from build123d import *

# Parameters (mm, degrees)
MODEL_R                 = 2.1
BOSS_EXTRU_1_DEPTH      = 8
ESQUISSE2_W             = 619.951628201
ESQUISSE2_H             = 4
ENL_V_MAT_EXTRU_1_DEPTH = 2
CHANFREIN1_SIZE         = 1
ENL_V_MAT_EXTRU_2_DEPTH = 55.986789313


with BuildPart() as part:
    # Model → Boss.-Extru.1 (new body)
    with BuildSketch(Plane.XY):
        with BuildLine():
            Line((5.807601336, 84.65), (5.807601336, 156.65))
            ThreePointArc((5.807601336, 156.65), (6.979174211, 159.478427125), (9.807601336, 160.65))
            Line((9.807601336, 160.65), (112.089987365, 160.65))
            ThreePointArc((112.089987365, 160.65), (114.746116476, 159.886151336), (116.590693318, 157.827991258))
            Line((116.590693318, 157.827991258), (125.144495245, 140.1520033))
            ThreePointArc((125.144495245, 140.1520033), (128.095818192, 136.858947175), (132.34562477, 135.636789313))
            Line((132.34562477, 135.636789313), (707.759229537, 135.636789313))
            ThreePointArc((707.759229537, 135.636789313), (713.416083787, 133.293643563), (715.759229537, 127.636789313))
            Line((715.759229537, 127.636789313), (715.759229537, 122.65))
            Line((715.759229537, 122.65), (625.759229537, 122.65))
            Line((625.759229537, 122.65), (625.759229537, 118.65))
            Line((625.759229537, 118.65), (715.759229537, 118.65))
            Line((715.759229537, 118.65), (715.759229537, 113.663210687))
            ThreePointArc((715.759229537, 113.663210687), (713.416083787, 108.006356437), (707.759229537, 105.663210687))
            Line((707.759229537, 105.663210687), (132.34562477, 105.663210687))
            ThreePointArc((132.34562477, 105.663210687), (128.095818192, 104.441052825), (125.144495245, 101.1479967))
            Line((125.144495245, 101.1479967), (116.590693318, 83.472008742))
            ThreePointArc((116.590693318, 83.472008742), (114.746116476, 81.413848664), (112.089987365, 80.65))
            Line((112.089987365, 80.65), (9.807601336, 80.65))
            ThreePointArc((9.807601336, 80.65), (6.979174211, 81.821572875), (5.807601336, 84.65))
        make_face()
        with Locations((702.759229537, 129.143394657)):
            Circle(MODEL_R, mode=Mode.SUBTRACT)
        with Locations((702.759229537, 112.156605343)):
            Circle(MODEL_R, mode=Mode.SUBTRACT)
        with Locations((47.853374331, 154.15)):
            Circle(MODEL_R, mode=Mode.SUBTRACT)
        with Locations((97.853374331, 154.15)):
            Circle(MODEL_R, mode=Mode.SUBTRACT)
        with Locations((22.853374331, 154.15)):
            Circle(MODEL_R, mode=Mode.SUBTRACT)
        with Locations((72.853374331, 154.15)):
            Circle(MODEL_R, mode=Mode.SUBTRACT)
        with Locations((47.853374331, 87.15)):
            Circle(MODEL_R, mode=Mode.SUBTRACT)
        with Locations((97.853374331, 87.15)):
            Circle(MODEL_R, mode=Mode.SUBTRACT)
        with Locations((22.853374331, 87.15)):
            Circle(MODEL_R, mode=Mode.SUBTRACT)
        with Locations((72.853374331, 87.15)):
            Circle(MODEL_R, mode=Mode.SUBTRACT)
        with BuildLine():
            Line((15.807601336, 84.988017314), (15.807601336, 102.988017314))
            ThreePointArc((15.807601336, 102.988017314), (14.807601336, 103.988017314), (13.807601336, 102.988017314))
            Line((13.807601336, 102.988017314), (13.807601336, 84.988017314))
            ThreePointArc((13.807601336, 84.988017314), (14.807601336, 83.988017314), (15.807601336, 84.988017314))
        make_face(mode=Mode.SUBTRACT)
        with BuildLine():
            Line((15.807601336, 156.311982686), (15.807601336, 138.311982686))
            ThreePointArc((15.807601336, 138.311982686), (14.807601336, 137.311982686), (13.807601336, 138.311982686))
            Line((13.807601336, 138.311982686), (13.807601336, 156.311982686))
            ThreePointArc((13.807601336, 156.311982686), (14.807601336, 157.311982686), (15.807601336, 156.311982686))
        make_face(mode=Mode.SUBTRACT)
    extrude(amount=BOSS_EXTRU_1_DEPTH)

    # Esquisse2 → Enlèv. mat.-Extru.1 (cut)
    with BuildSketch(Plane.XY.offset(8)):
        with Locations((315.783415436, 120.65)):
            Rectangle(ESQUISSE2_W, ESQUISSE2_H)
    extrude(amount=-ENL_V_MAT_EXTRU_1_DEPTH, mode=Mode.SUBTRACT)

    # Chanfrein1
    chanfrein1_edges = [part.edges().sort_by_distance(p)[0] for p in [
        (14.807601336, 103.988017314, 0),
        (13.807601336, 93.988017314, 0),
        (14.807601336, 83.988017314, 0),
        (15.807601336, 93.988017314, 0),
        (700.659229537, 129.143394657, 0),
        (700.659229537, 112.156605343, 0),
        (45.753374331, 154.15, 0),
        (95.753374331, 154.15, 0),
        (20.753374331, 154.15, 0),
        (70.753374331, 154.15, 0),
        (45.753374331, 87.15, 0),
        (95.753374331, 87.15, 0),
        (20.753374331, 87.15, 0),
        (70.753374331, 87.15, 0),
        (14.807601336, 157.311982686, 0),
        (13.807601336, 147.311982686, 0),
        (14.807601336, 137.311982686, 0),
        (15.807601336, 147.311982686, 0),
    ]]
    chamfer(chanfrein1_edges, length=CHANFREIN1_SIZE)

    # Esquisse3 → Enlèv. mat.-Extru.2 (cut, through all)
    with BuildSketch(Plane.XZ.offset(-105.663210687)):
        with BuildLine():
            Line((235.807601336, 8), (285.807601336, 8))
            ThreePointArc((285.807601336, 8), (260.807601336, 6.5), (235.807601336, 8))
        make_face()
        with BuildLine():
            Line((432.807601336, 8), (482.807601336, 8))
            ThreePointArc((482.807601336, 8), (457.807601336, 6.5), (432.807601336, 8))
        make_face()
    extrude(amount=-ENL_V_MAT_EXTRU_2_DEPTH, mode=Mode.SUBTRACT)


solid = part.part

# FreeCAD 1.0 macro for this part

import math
import FreeCAD as App
import Part
import Sketcher

V = App.Vector


def edges_at(feature, points):
    """Names of the edges that pass closest to the given points."""
    edges = feature.Shape.Edges
    near = lambda p: min(range(len(edges)), key=lambda i: edges[i].distToShape(Part.Vertex(*p))[0])
    return sorted({f"Edge{near(p) + 1}" for p in points})


def add_polygon(sketch, points):
    """Adds a closed chain of lines whose ends are joined by coincident constraints."""
    first, n = sketch.GeometryCount, len(points)
    for a, b in zip(points, points[1:] + points[:1]):
        sketch.addGeometry(Part.LineSegment(App.Vector(*a, 0), App.Vector(*b, 0)), False)
    for i in range(n):
        sketch.addConstraint(Sketcher.Constraint("Coincident", first + i, 2, first + (i + 1) % n, 1))

doc = App.newDocument("Part")
body = doc.addObject("PartDesign::Body", "Body")

# Sketch on XY plane
sketch1 = body.newObject("Sketcher::SketchObject", "Sketch")
sketch1.AttachmentSupport = (doc.getObject("XY_Plane"), [""])
sketch1.MapMode = "FlatFace"
sketch1.addGeometry([
    Part.LineSegment(V(5.8, 156.7, 0), V(5.8, 84.7, 0)),  # 0
    Part.ArcOfCircle(Part.Circle(V(9.8, 84.6, 0), V(0, 0, 1), 4), math.radians(180), math.radians(270)),  # 1
    Part.LineSegment(V(9.8, 80.7, 0), V(112.1, 80.7, 0)),  # 2
    Part.ArcOfCircle(Part.Circle(V(112.1, 85.7, 0), V(0, 0, 1), 5), math.radians(-90), math.radians(-26)),  # 3
    Part.LineSegment(V(116.6, 83.5, 0), V(125.1, 101.1, 0)),  # 4
    Part.ArcOfCircle(Part.Circle(V(132.3, 97.7, 0), V(0, 0, 1), 8), math.radians(90), math.radians(154)),  # 5
    Part.LineSegment(V(132.3, 105.7, 0), V(707.8, 105.7, 0)),  # 6
    Part.ArcOfCircle(Part.Circle(V(707.8, 113.7, 0), V(0, 0, 1), 8), math.radians(-90), math.radians(0)),  # 7
    Part.LineSegment(V(715.8, 113.7, 0), V(715.8, 118.7, 0)),  # 8
    Part.LineSegment(V(715.8, 118.7, 0), V(625.8, 118.7, 0)),  # 9
    Part.LineSegment(V(625.8, 118.7, 0), V(625.8, 122.7, 0)),  # 10
    Part.LineSegment(V(625.8, 122.7, 0), V(715.8, 122.7, 0)),  # 11
    Part.LineSegment(V(715.8, 122.7, 0), V(715.8, 127.6, 0)),  # 12
    Part.ArcOfCircle(Part.Circle(V(707.8, 127.6, 0), V(0, 0, 1), 8), math.radians(0), math.radians(90)),  # 13
    Part.LineSegment(V(707.8, 135.6, 0), V(132.3, 135.6, 0)),  # 14
    Part.ArcOfCircle(Part.Circle(V(132.3, 143.6, 0), V(0, 0, 1), 8), math.radians(-154), math.radians(-90)),  # 15
    Part.LineSegment(V(125.1, 140.2, 0), V(116.6, 157.8, 0)),  # 16
    Part.ArcOfCircle(Part.Circle(V(112.1, 155.6, 0), V(0, 0, 1), 5), math.radians(26), math.radians(90)),  # 17
    Part.LineSegment(V(112.1, 160.7, 0), V(9.8, 160.7, 0)),  # 18
    Part.ArcOfCircle(Part.Circle(V(9.8, 156.7, 0), V(0, 0, 1), 4), math.radians(90), math.radians(180)),  # 19
    Part.Circle(V(702.8, 112.2, 0), V(0, 0, 1), 2.1),  # 20
    Part.Circle(V(97.9, 87.2, 0), V(0, 0, 1), 2.1),  # 21
    Part.Circle(V(72.9, 87.2, 0), V(0, 0, 1), 2.1),  # 22
    Part.Circle(V(47.9, 87.2, 0), V(0, 0, 1), 2.1),  # 23
    Part.Circle(V(22.9, 87.2, 0), V(0, 0, 1), 2.1),  # 24
    Part.ArcOfCircle(Part.Circle(V(14.8, 85, 0), V(0, 0, 1), 1), math.radians(180), math.radians(360)),  # 25
    Part.LineSegment(V(13.8, 85, 0), V(13.8, 103, 0)),  # 26
    Part.ArcOfCircle(Part.Circle(V(14.8, 103, 0), V(0, 0, 1), 1), math.radians(0), math.radians(180)),  # 27
    Part.LineSegment(V(15.8, 103, 0), V(15.8, 85, 0)),  # 28
    Part.Circle(V(702.8, 129.1, 0), V(0, 0, 1), 2.1),  # 29
    Part.LineSegment(V(15.8, 156.3, 0), V(15.8, 138.3, 0)),  # 30
    Part.ArcOfCircle(Part.Circle(V(14.8, 138.3, 0), V(0, 0, 1), 1), math.radians(180), math.radians(360)),  # 31
    Part.LineSegment(V(13.8, 138.3, 0), V(13.8, 156.3, 0)),  # 32
    Part.ArcOfCircle(Part.Circle(V(14.8, 156.3, 0), V(0, 0, 1), 1), math.radians(0), math.radians(180)),  # 33
    Part.Circle(V(97.9, 154.2, 0), V(0, 0, 1), 2.1),  # 34
    Part.Circle(V(72.9, 154.2, 0), V(0, 0, 1), 2.1),  # 35
    Part.Circle(V(47.9, 154.2, 0), V(0, 0, 1), 2.1),  # 36
    Part.Circle(V(22.9, 154.2, 0), V(0, 0, 1), 2.1),  # 37
], False)
sketch1.addConstraint([
    Sketcher.Constraint("Tangent", 0, 2, 1, 1),
    Sketcher.Constraint("Tangent", 1, 2, 2, 1),
    Sketcher.Constraint("Tangent", 2, 2, 3, 1),
    Sketcher.Constraint("Tangent", 3, 2, 4, 1),
    Sketcher.Constraint("Tangent", 4, 2, 5, 2),
    Sketcher.Constraint("Tangent", 5, 1, 6, 1),
    Sketcher.Constraint("Tangent", 6, 2, 7, 1),
    Sketcher.Constraint("Tangent", 7, 2, 8, 1),
    Sketcher.Constraint("Coincident", 8, 2, 9, 1),
    Sketcher.Constraint("Coincident", 9, 2, 10, 1),
    Sketcher.Constraint("Coincident", 10, 2, 11, 1),
    Sketcher.Constraint("Coincident", 11, 2, 12, 1),
    Sketcher.Constraint("Tangent", 12, 2, 13, 1),
    Sketcher.Constraint("Tangent", 13, 2, 14, 1),
    Sketcher.Constraint("Tangent", 14, 2, 15, 2),
    Sketcher.Constraint("Tangent", 15, 1, 16, 1),
    Sketcher.Constraint("Tangent", 16, 2, 17, 1),
    Sketcher.Constraint("Tangent", 17, 2, 18, 1),
    Sketcher.Constraint("Tangent", 18, 2, 19, 1),
    Sketcher.Constraint("Tangent", 19, 2, 0, 1),
    Sketcher.Constraint("Tangent", 25, 1, 26, 1),
    Sketcher.Constraint("Tangent", 26, 2, 27, 2),
    Sketcher.Constraint("Tangent", 27, 1, 28, 1),
    Sketcher.Constraint("Tangent", 28, 2, 25, 2),
    Sketcher.Constraint("Tangent", 30, 2, 31, 2),
    Sketcher.Constraint("Tangent", 31, 1, 32, 1),
    Sketcher.Constraint("Tangent", 32, 2, 33, 2),
    Sketcher.Constraint("Tangent", 33, 1, 30, 1),
    Sketcher.Constraint("Vertical", 0),
    Sketcher.Constraint("Horizontal", 2),
    Sketcher.Constraint("Horizontal", 6),
    Sketcher.Constraint("Vertical", 8),
    Sketcher.Constraint("Horizontal", 9),
    Sketcher.Constraint("Vertical", 10),
    Sketcher.Constraint("Horizontal", 11),
    Sketcher.Constraint("Vertical", 12),
    Sketcher.Constraint("Horizontal", 14),
    Sketcher.Constraint("Horizontal", 18),
    Sketcher.Constraint("Vertical", 26),
    Sketcher.Constraint("Vertical", 28),
    Sketcher.Constraint("Vertical", 30),
    Sketcher.Constraint("Vertical", 32),
    Sketcher.Constraint("Equal", 5, 7),
    Sketcher.Constraint("Equal", 7, 13),
    Sketcher.Constraint("Equal", 13, 15),
    Sketcher.Constraint("Equal", 3, 17),
    Sketcher.Constraint("Equal", 1, 19),
    Sketcher.Constraint("Equal", 20, 21),
    Sketcher.Constraint("Equal", 21, 22),
    Sketcher.Constraint("Equal", 22, 23),
    Sketcher.Constraint("Equal", 23, 24),
    Sketcher.Constraint("Equal", 24, 29),
    Sketcher.Constraint("Equal", 27, 31),
    Sketcher.Constraint("Equal", 29, 34),
    Sketcher.Constraint("Equal", 34, 35),
    Sketcher.Constraint("Equal", 35, 36),
    Sketcher.Constraint("Equal", 36, 37),
    Sketcher.Constraint("Horizontal", 21, 3, 22, 3),
    Sketcher.Constraint("Horizontal", 22, 3, 23, 3),
    Sketcher.Constraint("Horizontal", 23, 3, 24, 3),
    Sketcher.Constraint("Horizontal", 34, 3, 35, 3),
    Sketcher.Constraint("Horizontal", 35, 3, 36, 3),
    Sketcher.Constraint("Horizontal", 36, 3, 37, 3),
    Sketcher.Constraint("Vertical", 7, 3, 13, 3),
    Sketcher.Constraint("Vertical", 5, 3, 15, 3),
    Sketcher.Constraint("Vertical", 3, 3, 17, 3),
    Sketcher.Constraint("Vertical", 20, 3, 29, 3),
    Sketcher.Constraint("Vertical", 27, 3, 31, 3),
    Sketcher.Constraint("Vertical", 21, 3, 34, 3),
    Sketcher.Constraint("Vertical", 22, 3, 35, 3),
    Sketcher.Constraint("Vertical", 23, 3, 36, 3),
    Sketcher.Constraint("Vertical", 24, 3, 37, 3),
    Sketcher.Constraint("Vertical", 4, 2, 15, 1),
    Sketcher.Constraint("Equal", 8, 12),
    Sketcher.Constraint("Equal", 28, 30),
    Sketcher.Constraint("Radius", 1, 4.0),
    Sketcher.Constraint("Radius", 3, 5.0),
    Sketcher.Constraint("Radius", 5, 8.0),
    Sketcher.Constraint("Radius", 25, 1.0),
    Sketcher.Constraint("Diameter", 20, 4.2),
    Sketcher.Constraint("DistanceX", 9, 2, 9, 1, 90.0),
    Sketcher.Constraint("DistanceY", 0, 2, 0, 1, 72.0),
    Sketcher.Constraint("DistanceY", 10, 1, 10, 2, 4.0),
    Sketcher.Constraint("DistanceY", 26, 1, 26, 2, 18.0),
    Sketcher.Constraint("DistanceX", 20, 3, 7, 3, 5.0),
    Sketcher.Constraint("DistanceX", 22, 3, 21, 3, 25.0),
    Sketcher.Constraint("DistanceX", 23, 3, 22, 3, 25.0),
    Sketcher.Constraint("DistanceX", 24, 3, 23, 3, 25.0),
    Sketcher.Constraint("DistanceX", 1, 3, 25, 3, 5.0),
    Sketcher.Constraint("DistanceY", 21, 3, 34, 3, 67.0),
    Sketcher.Constraint("DistanceY", 3, 3, 21, 3, 1.5),
    Sketcher.Constraint("DistanceY", -1, 1, 1, 3, 84.65),
    Sketcher.Constraint("DistanceY", 8, 1, 8, 2, 4.986789),
    Sketcher.Constraint("DistanceX", -1, 1, 1, 3, 9.807601),
    Sketcher.Constraint("DistanceY", 3, 2, 5, 3, 14.191202),
    Sketcher.Constraint("DistanceX", 2, 1, 2, 2, 102.282386),
    Sketcher.Constraint("DistanceX", 6, 1, 6, 2, 575.413605),
    Sketcher.Constraint("DistanceX", 21, 3, 5, 3, 34.49225),
    Sketcher.Constraint("DistanceY", 20, 3, 29, 3, 16.986789),
    Sketcher.Constraint("DistanceY", -1, 1, 20, 3, 112.156605),
    Sketcher.Constraint("DistanceY", -1, 1, 25, 3, 84.988017),
    Sketcher.Constraint("DistanceY", -1, 1, 31, 3, 138.311983),
])
pad1 = body.newObject("PartDesign::Pad", "Pad")
pad1.Profile = sketch1
pad1.Length = 8

# Sketch on XY plane
sketch2 = body.newObject("Sketcher::SketchObject", "Sketch001")
sketch2.AttachmentSupport = (doc.getObject("XY_Plane"), [""])
sketch2.MapMode = "FlatFace"
sketch2.AttachmentOffset = App.Placement(V(0, 0, 8), App.Rotation())
add_polygon(sketch2, [(5.8, 122.7), (5.8, 118.7), (625.8, 118.7), (625.8, 122.7)])  # lines 0-3
sketch2.addConstraint([
    Sketcher.Constraint("Vertical", 0),
    Sketcher.Constraint("Horizontal", 1),
    Sketcher.Constraint("Vertical", 2),
    Sketcher.Constraint("Horizontal", 3),
    Sketcher.Constraint("DistanceY", 0, 2, 0, 1, 4.0),
    Sketcher.Constraint("DistanceY", -1, 1, 0, 2, 118.65),
    Sketcher.Constraint("DistanceX", 1, 1, 1, 2, 619.951628),
    Sketcher.Constraint("DistanceX", -1, 1, 0, 2, 5.807601),
])
pocket1 = body.newObject("PartDesign::Pocket", "Pocket")
pocket1.Profile = sketch2
pocket1.Length = 2
doc.recompute()

chamfer = body.newObject("PartDesign::Chamfer", "Chamfer")
chamfer.Base = (pocket1, edges_at(pocket1, [
    (14.808, 103.988, 0),
    (13.808, 93.988, 0),
    (14.808, 83.988, 0),
    (15.808, 93.988, 0),
    (700.659, 129.143, 0),
    (700.659, 112.157, 0),
    (45.753, 154.15, 0),
    (95.753, 154.15, 0),
    (20.753, 154.15, 0),
    (70.753, 154.15, 0),
    (45.753, 87.15, 0),
    (95.753, 87.15, 0),
    (20.753, 87.15, 0),
    (70.753, 87.15, 0),
    (14.808, 157.312, 0),
    (13.808, 147.312, 0),
    (14.808, 137.312, 0),
    (15.808, 147.312, 0),
]))
chamfer.Size = 1

# Sketch on XZ plane
sketch3 = body.newObject("Sketcher::SketchObject", "Sketch002")
sketch3.AttachmentSupport = (doc.getObject("XZ_Plane"), [""])
sketch3.MapMode = "FlatFace"
sketch3.AttachmentOffset = App.Placement(V(0, 0, -105.663211), App.Rotation())
sketch3.addGeometry([
    Part.LineSegment(V(286, 8, 0), V(236, 8, 0)),
    Part.ArcOfCircle(Part.Circle(V(261, 216, 0), V(0, 0, 1), 209), math.radians(-96.87), math.radians(-83.13)),
    Part.LineSegment(V(483, 8, 0), V(433, 8, 0)),
    Part.ArcOfCircle(Part.Circle(V(458, 216, 0), V(0, 0, 1), 209), math.radians(-96.87), math.radians(-83.13)),
], False)
sketch3.addConstraint([
    Sketcher.Constraint("Coincident", 0, 1, 1, 2),
    Sketcher.Constraint("Coincident", 1, 1, 0, 2),
    Sketcher.Constraint("Coincident", 2, 1, 3, 2),
    Sketcher.Constraint("Coincident", 3, 1, 2, 2),
    Sketcher.Constraint("Horizontal", 0),
    Sketcher.Constraint("Horizontal", 2),
    Sketcher.Constraint("Equal", 1, 3),
    Sketcher.Constraint("Horizontal", 1, 3, 3, 3),
    Sketcher.Constraint("Horizontal", 1, 1, 2, 1),
    Sketcher.Constraint("DistanceX", 0, 2, 0, 1, 50.0),
    Sketcher.Constraint("DistanceY", -1, 1, 0, 1, 8.0),
    Sketcher.Constraint("DistanceX", 1, 3, 3, 3, 197.0),
    Sketcher.Constraint("Radius", 1, 209.083333),
    Sketcher.Constraint("DistanceX", -1, 1, 1, 3, 260.807601),
])
pocket2 = body.newObject("PartDesign::Pocket", "Pocket001")
pocket2.Profile = sketch3
pocket2.Type = "ThroughAll"

doc.recompute()
